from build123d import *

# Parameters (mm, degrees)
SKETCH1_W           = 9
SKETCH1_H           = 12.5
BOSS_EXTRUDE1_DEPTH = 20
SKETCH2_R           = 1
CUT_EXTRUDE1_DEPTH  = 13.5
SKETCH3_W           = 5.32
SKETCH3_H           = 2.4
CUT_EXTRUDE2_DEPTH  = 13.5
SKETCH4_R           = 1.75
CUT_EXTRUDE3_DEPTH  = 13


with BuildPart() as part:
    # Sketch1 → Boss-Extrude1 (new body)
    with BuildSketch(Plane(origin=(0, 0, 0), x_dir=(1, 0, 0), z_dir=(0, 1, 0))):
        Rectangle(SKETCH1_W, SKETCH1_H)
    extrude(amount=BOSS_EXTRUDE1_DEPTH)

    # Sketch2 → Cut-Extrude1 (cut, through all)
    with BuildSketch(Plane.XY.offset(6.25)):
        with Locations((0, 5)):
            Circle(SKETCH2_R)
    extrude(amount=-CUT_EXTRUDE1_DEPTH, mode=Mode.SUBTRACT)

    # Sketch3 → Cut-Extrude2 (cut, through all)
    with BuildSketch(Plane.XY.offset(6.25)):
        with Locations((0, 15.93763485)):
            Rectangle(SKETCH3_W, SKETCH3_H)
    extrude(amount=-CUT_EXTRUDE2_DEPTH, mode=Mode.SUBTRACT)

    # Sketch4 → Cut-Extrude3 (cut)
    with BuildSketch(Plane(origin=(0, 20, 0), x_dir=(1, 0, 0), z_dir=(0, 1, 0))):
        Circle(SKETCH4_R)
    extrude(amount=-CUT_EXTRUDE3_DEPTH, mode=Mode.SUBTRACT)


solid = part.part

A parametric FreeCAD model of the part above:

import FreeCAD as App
import Part
import Sketcher

V = App.Vector

doc = App.newDocument("Part")
params = doc.addObject("Spreadsheet::Sheet", "Params")
for row, (alias, value) in enumerate([
    ("sketch1_width", "9 mm"),
    ("sketch1_height", "12.5 mm"),
    ("pad1_length", "20 mm"),
    ("sketch2_diameter", "2 mm"),
    ("sketch3_height", "2.4 mm"),
    ("sketch3_width", "5.32 mm"),
    ("sketch4_diameter", "3.5 mm"),
    ("pocket3_length", "13 mm"),
], start=1):
    params.set(f"A{row}", alias)
    params.set(f"B{row}", "=" + value)
    params.setAlias(f"B{row}", alias)

body = doc.addObject("PartDesign::Body", "Body")

sketch1 = body.newObject("Sketcher::SketchObject", "Sketch")
sketch1.AttachmentSupport = (doc.getObject("XZ_Plane"), [""])
sketch1.MapMode = "FlatFace"
sketch1.addGeometry([
    Part.LineSegment(V(-4, -6, 0), V(-4, 6, 0)),
    Part.LineSegment(V(-4, 6, 0), V(4, 6, 0)),
    Part.LineSegment(V(4, 6, 0), V(4, -6, 0)),
    Part.LineSegment(V(4, -6, 0), V(-4, -6, 0)),
], False)
sketch1.addConstraint([
    Sketcher.Constraint("Coincident", 0, 2, 1, 1),
    Sketcher.Constraint("Coincident", 1, 2, 2, 1),
    Sketcher.Constraint("Coincident", 2, 2, 3, 1),
    Sketcher.Constraint("Coincident", 3, 2, 0, 1),
    Sketcher.Constraint("Vertical", 0),
    Sketcher.Constraint("Horizontal", 1),
    Sketcher.Constraint("Vertical", 2),
    Sketcher.Constraint("Horizontal", 3),
    Sketcher.Constraint("Symmetric", 0, 2, 2, 2, -1, 1),
    Sketcher.Constraint("DistanceX", 1, 1, 1, 2, 9.0),
    Sketcher.Constraint("DistanceY", 0, 1, 0, 2, 12.5),
])
sketch1.setExpression("Constraints[9]", "Params.sketch1_width")
sketch1.setExpression("Constraints[10]", "Params.sketch1_height")
pad1 = body.newObject("PartDesign::Pad", "Pad")
pad1.Profile = sketch1
pad1.setExpression("Length", "Params.pad1_length")
pad1.Reversed = True

sketch2 = body.newObject("Sketcher::SketchObject", "Sketch001")
sketch2.AttachmentSupport = (doc.getObject("XY_Plane"), [""])
sketch2.MapMode = "FlatFace"
sketch2.AttachmentOffset = App.Placement(V(0, 0, 6.25), App.Rotation())
sketch2.addGeometry(Part.Circle(V(0, 5, 0), V(0, 0, 1), 1), False)
sketch2.addConstraint([
    Sketcher.Constraint("PointOnObject", 0, 3, -2),
    Sketcher.Constraint("Diameter", 0, 2.0),
    Sketcher.Constraint("DistanceY", -1, 1, 0, 3, 5.0),
])
sketch2.setExpression("Constraints[1]", "Params.sketch2_diameter")
pocket1 = body.newObject("PartDesign::Pocket", "Pocket")
pocket1.Profile = sketch2
pocket1.Type = "ThroughAll"

sketch3 = body.newObject("Sketcher::SketchObject", "Sketch002")
sketch3.AttachmentSupport = (doc.getObject("XY_Plane"), [""])
sketch3.MapMode = "FlatFace"
sketch3.AttachmentOffset = App.Placement(V(0, 0, 6.25), App.Rotation())
sketch3.addGeometry([
    Part.LineSegment(V(-2.7, 17.1, 0), V(-2.7, 14.7, 0)),
    Part.LineSegment(V(-2.7, 14.7, 0), V(2.7, 14.7, 0)),
    Part.LineSegment(V(2.7, 14.7, 0), V(2.7, 17.1, 0)),
    Part.LineSegment(V(2.7, 17.1, 0), V(-2.7, 17.1, 0)),
], False)
sketch3.addConstraint([
    Sketcher.Constraint("Coincident", 0, 2, 1, 1),
    Sketcher.Constraint("Coincident", 1, 2, 2, 1),
    Sketcher.Constraint("Coincident", 2, 2, 3, 1),
    Sketcher.Constraint("Coincident", 3, 2, 0, 1),
    Sketcher.Constraint("Vertical", 0),
    Sketcher.Constraint("Horizontal", 1),
    Sketcher.Constraint("Vertical", 2),
    Sketcher.Constraint("Horizontal", 3),
    Sketcher.Constraint("DistanceY", 0, 2, 0, 1, 2.4),
    Sketcher.Constraint("DistanceX", 1, 1, 1, 2, 5.32),
    Sketcher.Constraint("DistanceX", 0, 2, -1, 1, 2.66),
    Sketcher.Constraint("DistanceY", -1, 1, 0, 2, 14.737635),
])
sketch3.setExpression("Constraints[8]", "Params.sketch3_height")
sketch3.setExpression("Constraints[9]", "Params.sketch3_width")
pocket2 = body.newObject("PartDesign::Pocket", "Pocket001")
pocket2.Profile = sketch3
pocket2.Type = "ThroughAll"

sketch4 = body.newObject("Sketcher::SketchObject", "Sketch003")
sketch4.AttachmentSupport = (doc.getObject("XZ_Plane"), [""])
sketch4.MapMode = "FlatFace"
sketch4.AttachmentOffset = App.Placement(V(0, 0, -20), App.Rotation())
sketch4.addGeometry(Part.Circle(V(0, 0, 0), V(0, 0, 1), 1.8), False)
sketch4.addConstraint([
    Sketcher.Constraint("Coincident", 0, 3, -1, 1),
    Sketcher.Constraint("Diameter", 0, 3.5),
])
sketch4.setExpression("Constraints[1]", "Params.sketch4_diameter")
pocket3 = body.newObject("PartDesign::Pocket", "Pocket002")
pocket3.Profile = sketch4
pocket3.setExpression("Length", "Params.pocket3_length")
pocket3.Reversed = True

doc.recompute()
